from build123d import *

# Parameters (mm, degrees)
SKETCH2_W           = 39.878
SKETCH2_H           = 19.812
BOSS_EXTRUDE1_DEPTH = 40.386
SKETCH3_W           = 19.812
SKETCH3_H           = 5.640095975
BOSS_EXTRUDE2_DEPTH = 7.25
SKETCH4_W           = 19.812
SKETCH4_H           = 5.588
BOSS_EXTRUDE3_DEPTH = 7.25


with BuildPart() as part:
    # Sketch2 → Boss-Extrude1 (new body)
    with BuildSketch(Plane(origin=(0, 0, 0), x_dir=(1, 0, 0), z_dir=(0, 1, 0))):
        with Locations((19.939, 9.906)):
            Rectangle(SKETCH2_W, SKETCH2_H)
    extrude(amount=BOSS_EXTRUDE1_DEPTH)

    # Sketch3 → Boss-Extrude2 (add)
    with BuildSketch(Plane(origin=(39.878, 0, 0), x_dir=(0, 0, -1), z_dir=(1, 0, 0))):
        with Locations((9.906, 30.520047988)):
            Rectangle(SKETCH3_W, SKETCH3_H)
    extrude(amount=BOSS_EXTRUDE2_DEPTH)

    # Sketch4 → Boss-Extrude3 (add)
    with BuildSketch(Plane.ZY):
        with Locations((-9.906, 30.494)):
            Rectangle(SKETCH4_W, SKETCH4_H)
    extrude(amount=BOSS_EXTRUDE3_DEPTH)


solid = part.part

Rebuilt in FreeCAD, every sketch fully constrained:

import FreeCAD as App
import Part
import Sketcher
Q = App.Units.Quantity


def add_polygon(sketch, points):
    """Adds a closed chain of lines whose ends are joined by coincident constraints."""
    first, n = sketch.GeometryCount, len(points)
    for a, b in zip(points, points[1:] + points[:1]):
        sketch.addGeometry(Part.LineSegment(App.Vector(*a, 0), App.Vector(*b, 0)), False)
    for i in range(n):
        sketch.addConstraint(Sketcher.Constraint("Coincident", first + i, 2, first + (i + 1) % n, 1))

doc = App.newDocument("Part")
body = doc.addObject("PartDesign::Body", "Body")

sketch1 = body.newObject("Sketcher::SketchObject", "Sketch")
sketch1.AttachmentSupport = (doc.getObject("XZ_Plane"), [""])
sketch1.MapMode = "FlatFace"
add_polygon(sketch1, [(0, -20), (0, 0), (40, 0), (40, -20)])
sketch1.addConstraint([
    Sketcher.Constraint("Vertical", 0),
    Sketcher.Constraint("Horizontal", 1),
    Sketcher.Constraint("Vertical", 2),
    Sketcher.Constraint("Horizontal", 3),
    Sketcher.Constraint("Coincident", 0, 2, -1, 1),
    Sketcher.Constraint("DistanceX", 1, 1, 1, 2, Q("1.57 in")),
    Sketcher.Constraint("DistanceY", 0, 1, 0, 2, Q("0.78 in")),
])
pad1 = body.newObject("PartDesign::Pad", "Pad")
pad1.Profile = sketch1
pad1.Length = Q("1.59 in")
pad1.Reversed = True

sketch2 = body.newObject("Sketcher::SketchObject", "Sketch001")
sketch2.AttachmentSupport = (doc.getObject("YZ_Plane"), [""])
sketch2.MapMode = "FlatFace"
sketch2.AttachmentOffset = App.Placement(App.Vector(0, 0, 1.57 * 25.4), App.Rotation())
add_polygon(sketch2, [(33, 0), (28, 0), (28, -20), (33, -20)])
sketch2.addConstraint([
    Sketcher.Constraint("Horizontal", 0),
    Sketcher.Constraint("Vertical", 1),
    Sketcher.Constraint("Horizontal", 2),
    Sketcher.Constraint("Vertical", 3),
    Sketcher.Constraint("PointOnObject", 0, 2, -1),
    Sketcher.Constraint("DistanceY", 1, 2, 1, 1, Q("0.78 in")),
    Sketcher.Constraint("DistanceX", -1, 1, 0, 2, Q("27.7 mm")),
    Sketcher.Constraint("DistanceX", 0, 2, 0, 1, Q("5.640096 mm")),
])
pad2 = body.newObject("PartDesign::Pad", "Pad001")
pad2.Profile = sketch2
pad2.Length = 7.25

sketch3 = body.newObject("Sketcher::SketchObject", "Sketch002")
sketch3.AttachmentSupport = (doc.getObject("YZ_Plane"), [""])
sketch3.MapMode = "FlatFace"
add_polygon(sketch3, [(33, -20), (28, -20), (28, 0), (33, 0)])
sketch3.addConstraint([
    Sketcher.Constraint("Horizontal", 0),
    Sketcher.Constraint("Vertical", 1),
    Sketcher.Constraint("Horizontal", 2),
    Sketcher.Constraint("Vertical", 3),
    Sketcher.Constraint("PointOnObject", 1, 2, -1),
    Sketcher.Constraint("DistanceX", 0, 2, 0, 1, Q("0.22 in")),
    Sketcher.Constraint("DistanceY", 1, 1, 1, 2, Q("0.78 in")),
    Sketcher.Constraint("DistanceX", -1, 1, 0, 2, Q("27.7 mm")),
])
pad3 = body.newObject("PartDesign::Pad", "Pad002")
pad3.Profile = sketch3
pad3.Length = 7.25
pad3.Reversed = True

doc.recompute()
